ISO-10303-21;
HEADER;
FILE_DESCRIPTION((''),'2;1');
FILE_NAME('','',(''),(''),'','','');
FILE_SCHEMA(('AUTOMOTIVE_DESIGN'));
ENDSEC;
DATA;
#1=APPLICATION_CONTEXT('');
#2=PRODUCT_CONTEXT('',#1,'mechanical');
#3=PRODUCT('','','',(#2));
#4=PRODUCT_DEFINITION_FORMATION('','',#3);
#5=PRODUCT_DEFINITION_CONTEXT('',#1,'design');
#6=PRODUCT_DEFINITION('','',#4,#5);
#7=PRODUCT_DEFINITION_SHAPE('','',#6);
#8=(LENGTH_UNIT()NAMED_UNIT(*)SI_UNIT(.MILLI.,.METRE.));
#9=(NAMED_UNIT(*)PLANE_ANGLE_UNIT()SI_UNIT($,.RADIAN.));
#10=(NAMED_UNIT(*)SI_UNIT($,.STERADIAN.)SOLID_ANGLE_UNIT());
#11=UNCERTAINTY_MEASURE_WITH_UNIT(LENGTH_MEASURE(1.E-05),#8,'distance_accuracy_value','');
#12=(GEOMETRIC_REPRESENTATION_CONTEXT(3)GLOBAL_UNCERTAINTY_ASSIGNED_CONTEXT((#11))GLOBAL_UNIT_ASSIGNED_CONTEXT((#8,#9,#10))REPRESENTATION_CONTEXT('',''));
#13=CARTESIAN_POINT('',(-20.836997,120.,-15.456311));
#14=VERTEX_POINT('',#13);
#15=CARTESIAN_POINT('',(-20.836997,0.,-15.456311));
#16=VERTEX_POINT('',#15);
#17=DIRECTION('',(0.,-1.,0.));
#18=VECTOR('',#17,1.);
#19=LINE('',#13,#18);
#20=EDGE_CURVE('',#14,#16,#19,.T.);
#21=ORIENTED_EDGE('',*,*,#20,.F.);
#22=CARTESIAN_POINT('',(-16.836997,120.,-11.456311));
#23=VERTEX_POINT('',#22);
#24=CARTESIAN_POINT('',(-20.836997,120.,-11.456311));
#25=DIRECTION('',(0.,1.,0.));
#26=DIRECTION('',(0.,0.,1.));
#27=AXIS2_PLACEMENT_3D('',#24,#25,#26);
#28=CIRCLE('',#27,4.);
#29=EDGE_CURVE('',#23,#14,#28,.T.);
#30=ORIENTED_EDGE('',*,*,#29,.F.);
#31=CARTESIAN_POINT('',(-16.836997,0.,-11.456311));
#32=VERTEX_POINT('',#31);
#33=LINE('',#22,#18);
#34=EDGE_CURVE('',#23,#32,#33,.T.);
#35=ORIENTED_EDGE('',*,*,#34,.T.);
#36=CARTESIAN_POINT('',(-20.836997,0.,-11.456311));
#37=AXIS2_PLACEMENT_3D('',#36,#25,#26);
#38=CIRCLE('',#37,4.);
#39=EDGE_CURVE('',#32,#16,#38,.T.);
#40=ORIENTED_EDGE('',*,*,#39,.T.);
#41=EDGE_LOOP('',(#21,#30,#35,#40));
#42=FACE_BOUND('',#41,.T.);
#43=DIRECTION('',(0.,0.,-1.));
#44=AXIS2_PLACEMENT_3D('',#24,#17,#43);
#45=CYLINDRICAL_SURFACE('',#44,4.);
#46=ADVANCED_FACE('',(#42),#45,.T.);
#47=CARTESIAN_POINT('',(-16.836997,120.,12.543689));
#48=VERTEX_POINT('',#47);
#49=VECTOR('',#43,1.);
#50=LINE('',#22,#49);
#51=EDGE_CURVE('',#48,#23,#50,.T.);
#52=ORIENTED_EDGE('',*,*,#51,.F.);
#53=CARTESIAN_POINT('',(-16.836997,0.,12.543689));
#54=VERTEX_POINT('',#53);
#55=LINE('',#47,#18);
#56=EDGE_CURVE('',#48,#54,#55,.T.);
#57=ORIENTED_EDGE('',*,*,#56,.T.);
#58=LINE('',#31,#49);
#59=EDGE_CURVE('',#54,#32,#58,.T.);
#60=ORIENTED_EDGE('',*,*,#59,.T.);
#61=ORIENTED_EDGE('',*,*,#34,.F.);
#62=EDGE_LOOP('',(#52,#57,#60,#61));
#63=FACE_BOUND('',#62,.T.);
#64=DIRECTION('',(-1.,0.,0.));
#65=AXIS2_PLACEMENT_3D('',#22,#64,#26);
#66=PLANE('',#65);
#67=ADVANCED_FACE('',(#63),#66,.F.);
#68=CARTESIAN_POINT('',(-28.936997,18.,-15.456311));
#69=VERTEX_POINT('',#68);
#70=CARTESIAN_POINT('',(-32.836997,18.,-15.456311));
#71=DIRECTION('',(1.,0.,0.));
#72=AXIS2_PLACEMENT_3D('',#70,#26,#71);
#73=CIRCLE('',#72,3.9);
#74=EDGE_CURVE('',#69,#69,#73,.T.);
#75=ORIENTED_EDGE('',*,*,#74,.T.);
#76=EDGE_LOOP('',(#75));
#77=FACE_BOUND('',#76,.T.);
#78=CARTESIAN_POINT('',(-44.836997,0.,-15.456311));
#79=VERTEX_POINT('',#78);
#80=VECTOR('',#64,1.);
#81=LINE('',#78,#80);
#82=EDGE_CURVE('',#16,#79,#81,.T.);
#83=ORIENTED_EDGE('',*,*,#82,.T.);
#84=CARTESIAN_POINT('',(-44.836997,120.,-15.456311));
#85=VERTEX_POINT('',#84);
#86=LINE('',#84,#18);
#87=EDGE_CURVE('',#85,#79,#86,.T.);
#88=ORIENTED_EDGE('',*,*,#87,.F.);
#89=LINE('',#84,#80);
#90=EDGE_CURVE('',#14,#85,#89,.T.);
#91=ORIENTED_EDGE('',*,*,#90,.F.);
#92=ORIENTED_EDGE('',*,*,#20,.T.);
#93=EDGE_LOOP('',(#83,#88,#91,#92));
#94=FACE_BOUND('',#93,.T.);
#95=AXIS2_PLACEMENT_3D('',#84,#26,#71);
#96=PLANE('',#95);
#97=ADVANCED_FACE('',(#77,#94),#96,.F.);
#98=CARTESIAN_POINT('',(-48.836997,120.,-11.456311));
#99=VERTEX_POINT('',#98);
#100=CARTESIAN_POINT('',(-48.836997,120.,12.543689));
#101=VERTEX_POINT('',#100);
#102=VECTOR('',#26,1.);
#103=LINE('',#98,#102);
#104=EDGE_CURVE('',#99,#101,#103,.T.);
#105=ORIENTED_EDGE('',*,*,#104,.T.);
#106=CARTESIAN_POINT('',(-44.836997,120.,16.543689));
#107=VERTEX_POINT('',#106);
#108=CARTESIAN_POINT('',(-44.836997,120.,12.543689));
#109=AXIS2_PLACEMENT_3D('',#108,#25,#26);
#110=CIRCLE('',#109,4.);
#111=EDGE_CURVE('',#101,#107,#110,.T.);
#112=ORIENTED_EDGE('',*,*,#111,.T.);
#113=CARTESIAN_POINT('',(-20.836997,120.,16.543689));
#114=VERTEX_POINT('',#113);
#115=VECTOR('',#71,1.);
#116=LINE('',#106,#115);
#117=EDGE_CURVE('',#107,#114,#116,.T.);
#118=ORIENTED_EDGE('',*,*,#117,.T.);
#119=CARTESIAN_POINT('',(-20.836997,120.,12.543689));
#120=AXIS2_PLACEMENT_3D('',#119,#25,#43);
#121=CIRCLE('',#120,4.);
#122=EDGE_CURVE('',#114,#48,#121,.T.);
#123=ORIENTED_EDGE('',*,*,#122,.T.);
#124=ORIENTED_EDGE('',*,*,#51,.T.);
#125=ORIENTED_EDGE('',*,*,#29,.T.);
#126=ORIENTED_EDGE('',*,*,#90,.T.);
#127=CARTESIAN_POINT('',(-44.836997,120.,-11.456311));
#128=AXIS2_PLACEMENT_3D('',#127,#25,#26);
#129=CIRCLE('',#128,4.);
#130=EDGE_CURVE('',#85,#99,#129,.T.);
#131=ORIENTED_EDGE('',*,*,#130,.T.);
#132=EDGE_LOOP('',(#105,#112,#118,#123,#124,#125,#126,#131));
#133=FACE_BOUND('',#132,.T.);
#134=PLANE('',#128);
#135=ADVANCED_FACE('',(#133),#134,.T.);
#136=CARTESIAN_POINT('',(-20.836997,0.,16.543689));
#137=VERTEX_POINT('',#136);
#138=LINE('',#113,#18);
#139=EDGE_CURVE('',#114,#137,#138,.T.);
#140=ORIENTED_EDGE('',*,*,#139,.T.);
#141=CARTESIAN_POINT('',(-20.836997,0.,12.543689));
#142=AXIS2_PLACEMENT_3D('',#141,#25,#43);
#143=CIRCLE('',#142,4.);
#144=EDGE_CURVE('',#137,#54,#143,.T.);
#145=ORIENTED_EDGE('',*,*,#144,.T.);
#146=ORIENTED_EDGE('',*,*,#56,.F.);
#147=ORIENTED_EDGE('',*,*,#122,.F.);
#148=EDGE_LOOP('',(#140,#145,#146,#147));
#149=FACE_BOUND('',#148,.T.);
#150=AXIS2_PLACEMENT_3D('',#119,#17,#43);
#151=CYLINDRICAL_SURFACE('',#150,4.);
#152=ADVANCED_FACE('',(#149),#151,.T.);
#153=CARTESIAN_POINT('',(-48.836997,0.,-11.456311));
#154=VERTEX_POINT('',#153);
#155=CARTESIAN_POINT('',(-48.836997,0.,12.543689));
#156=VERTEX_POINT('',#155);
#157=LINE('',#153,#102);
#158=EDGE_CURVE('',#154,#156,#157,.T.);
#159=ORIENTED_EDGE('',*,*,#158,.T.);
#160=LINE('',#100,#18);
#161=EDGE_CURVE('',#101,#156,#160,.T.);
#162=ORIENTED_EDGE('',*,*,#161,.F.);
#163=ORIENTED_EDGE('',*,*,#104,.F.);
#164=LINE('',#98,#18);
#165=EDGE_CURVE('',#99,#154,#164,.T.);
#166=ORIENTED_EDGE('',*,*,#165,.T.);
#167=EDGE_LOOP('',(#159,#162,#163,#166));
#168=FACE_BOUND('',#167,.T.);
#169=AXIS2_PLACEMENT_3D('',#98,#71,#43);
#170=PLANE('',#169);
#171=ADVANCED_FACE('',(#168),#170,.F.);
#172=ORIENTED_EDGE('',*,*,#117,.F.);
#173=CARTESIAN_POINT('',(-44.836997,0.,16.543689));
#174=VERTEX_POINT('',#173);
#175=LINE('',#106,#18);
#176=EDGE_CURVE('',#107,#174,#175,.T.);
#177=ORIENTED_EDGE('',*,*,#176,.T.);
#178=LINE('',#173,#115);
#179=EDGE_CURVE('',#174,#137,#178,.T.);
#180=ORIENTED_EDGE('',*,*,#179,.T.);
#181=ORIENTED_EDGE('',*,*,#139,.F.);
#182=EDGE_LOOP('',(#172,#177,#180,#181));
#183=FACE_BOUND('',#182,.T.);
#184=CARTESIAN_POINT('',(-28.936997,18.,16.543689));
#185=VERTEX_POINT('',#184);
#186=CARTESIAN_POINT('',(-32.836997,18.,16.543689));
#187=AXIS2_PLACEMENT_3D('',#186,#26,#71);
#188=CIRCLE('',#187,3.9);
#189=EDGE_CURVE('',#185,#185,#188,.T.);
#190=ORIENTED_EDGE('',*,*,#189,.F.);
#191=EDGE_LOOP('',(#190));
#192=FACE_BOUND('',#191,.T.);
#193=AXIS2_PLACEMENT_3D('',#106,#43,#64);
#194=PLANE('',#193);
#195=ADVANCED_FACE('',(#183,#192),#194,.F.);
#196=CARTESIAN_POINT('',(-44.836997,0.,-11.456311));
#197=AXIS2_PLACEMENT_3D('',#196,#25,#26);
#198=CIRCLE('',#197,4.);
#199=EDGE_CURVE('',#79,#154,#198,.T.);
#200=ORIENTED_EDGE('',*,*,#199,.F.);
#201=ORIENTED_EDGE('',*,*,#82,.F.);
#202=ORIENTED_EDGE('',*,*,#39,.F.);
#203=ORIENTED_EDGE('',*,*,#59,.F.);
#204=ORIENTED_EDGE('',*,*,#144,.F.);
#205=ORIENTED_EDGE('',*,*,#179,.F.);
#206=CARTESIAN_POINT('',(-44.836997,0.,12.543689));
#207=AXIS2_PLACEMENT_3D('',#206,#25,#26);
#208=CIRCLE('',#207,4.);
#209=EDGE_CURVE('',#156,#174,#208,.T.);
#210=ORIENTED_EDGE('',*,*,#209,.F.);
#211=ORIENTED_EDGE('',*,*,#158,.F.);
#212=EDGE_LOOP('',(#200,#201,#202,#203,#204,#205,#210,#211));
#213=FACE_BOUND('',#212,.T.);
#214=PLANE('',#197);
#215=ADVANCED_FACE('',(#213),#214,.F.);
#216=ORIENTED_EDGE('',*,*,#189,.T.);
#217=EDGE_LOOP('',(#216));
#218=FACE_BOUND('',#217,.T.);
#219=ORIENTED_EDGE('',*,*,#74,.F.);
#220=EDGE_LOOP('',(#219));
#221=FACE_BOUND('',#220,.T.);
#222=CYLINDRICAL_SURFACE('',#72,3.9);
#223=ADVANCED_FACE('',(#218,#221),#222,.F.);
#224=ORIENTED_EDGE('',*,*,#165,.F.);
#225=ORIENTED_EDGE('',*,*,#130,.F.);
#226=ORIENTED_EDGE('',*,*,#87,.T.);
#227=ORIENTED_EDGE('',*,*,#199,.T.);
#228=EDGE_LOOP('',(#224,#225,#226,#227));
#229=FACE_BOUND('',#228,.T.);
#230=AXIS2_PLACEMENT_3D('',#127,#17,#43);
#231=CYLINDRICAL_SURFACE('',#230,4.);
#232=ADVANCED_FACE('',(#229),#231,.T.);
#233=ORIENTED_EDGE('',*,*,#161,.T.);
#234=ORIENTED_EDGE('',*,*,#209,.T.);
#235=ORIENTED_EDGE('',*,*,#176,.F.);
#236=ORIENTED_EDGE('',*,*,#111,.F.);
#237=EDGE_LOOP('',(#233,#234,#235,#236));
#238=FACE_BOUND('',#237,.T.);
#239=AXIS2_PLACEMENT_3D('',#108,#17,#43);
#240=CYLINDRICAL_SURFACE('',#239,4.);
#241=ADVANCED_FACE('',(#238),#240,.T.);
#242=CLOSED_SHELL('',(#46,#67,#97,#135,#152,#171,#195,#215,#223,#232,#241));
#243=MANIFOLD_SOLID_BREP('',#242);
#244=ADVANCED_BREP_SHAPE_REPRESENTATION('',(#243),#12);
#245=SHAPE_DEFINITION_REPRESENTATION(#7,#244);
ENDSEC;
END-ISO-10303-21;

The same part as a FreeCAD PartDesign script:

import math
import FreeCAD as App
import Part
import Sketcher

V = App.Vector
Q = App.Units.Quantity

doc = App.newDocument("Part")
body = doc.addObject("PartDesign::Body", "Body")

sketch1 = body.newObject("Sketcher::SketchObject", "Sketch")
sketch1.AttachmentSupport = (doc.getObject("XZ_Plane"), [""])
sketch1.MapMode = "FlatFace"
sketch1.addGeometry(Part.LineSegment(V(-20.8, -15.5, 0), V(-44.8, -15.5, 0)), False)
sketch1.addGeometry(Part.ArcOfCircle(Part.Circle(V(-44.8, -11.5, 0), V(0, 0, 1), 4), math.radians(-180), math.radians(-90)), False)
sketch1.addGeometry(Part.LineSegment(V(-48.8, -11.5, 0), V(-48.8, 12.5, 0)), False)
sketch1.addGeometry(Part.ArcOfCircle(Part.Circle(V(-44.8, 12.5, 0), V(0, 0, 1), 4), math.radians(90), math.radians(180)), False)
sketch1.addGeometry(Part.LineSegment(V(-44.8, 16.5, 0), V(-20.8, 16.5, 0)), False)
sketch1.addGeometry(Part.ArcOfCircle(Part.Circle(V(-20.8, 12.5, 0), V(0, 0, 1), 4), math.radians(0), math.radians(90)), False)
sketch1.addGeometry(Part.LineSegment(V(-16.8, 12.5, 0), V(-16.8, -11.5, 0)), False)
sketch1.addGeometry(Part.ArcOfCircle(Part.Circle(V(-20.8, -11.5, 0), V(0, 0, 1), 4), math.radians(-90), math.radians(0)), False)
sketch1.addConstraint(Sketcher.Constraint("Tangent", 0, 2, 1, 2))
sketch1.addConstraint(Sketcher.Constraint("Tangent", 1, 1, 2, 1))
sketch1.addConstraint(Sketcher.Constraint("Tangent", 2, 2, 3, 2))
sketch1.addConstraint(Sketcher.Constraint("Tangent", 3, 1, 4, 1))
sketch1.addConstraint(Sketcher.Constraint("Tangent", 4, 2, 5, 2))
sketch1.addConstraint(Sketcher.Constraint("Tangent", 5, 1, 6, 1))
sketch1.addConstraint(Sketcher.Constraint("Tangent", 6, 2, 7, 2))
sketch1.addConstraint(Sketcher.Constraint("Tangent", 7, 1, 0, 1))
sketch1.addConstraint(Sketcher.Constraint("Horizontal", 0))
sketch1.addConstraint(Sketcher.Constraint("Vertical", 2))
sketch1.addConstraint(Sketcher.Constraint("Horizontal", 4))
sketch1.addConstraint(Sketcher.Constraint("Vertical", 6))
sketch1.addConstraint(Sketcher.Constraint("Equal", 1, 3))
sketch1.addConstraint(Sketcher.Constraint("Equal", 3, 5))
sketch1.addConstraint(Sketcher.Constraint("Equal", 5, 7))
sketch1.addConstraint(Sketcher.Constraint("Equal", 4, 2))
sketch1.addConstraint(Sketcher.Constraint("Radius", 1, Q("4 mm")))
sketch1.addConstraint(Sketcher.Constraint("DistanceX", 0, 2, 0, 1, Q("24 mm")))
sketch1.addConstraint(Sketcher.Constraint("DistanceY", 1, 3, -1, 1, Q("11.456311 mm")))
sketch1.addConstraint(Sketcher.Constraint("DistanceX", 1, 3, -1, 1, Q("44.836997 mm")))
pad1 = body.newObject("PartDesign::Pad", "Pad")
pad1.Profile = sketch1
pad1.Length = 120
pad1.Reversed = True

sketch2 = body.newObject("Sketcher::SketchObject", "Sketch001")
sketch2.AttachmentSupport = (doc.getObject("XY_Plane"), [""])
sketch2.MapMode = "FlatFace"
sketch2.AttachmentOffset = App.Placement(V(0, 0, 16.543689), App.Rotation())
sketch2.addGeometry(Part.Circle(V(-32.8, 18, 0), V(0, 0, 1), 3.9), False)
sketch2.addConstraint(Sketcher.Constraint("Diameter", 0, Q("7.8 mm")))
sketch2.addConstraint(Sketcher.Constraint("DistanceY", -1, 1, 0, 3, Q("18 mm")))
sketch2.addConstraint(Sketcher.Constraint("DistanceX", 0, 3, -1, 1, Q("32.836997 mm")))
pocket1 = body.newObject("PartDesign::Pocket", "Pocket")
pocket1.Profile = sketch2
pocket1.Length = 32

doc.recompute()
